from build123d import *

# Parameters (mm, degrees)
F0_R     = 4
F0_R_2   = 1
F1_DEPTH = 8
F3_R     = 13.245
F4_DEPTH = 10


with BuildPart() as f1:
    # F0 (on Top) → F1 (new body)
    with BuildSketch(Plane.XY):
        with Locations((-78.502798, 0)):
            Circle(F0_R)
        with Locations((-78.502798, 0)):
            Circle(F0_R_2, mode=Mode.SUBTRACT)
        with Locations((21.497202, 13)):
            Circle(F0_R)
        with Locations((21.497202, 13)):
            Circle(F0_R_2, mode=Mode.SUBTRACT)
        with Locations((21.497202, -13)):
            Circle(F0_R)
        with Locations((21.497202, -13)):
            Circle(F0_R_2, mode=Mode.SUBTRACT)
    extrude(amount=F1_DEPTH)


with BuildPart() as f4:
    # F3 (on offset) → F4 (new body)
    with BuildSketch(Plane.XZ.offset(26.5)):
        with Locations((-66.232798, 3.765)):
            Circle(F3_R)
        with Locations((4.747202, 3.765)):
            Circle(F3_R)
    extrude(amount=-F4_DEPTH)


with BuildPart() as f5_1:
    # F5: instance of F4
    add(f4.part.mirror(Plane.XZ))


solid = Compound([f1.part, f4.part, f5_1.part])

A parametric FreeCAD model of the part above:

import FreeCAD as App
import Part
import Sketcher

V = App.Vector

doc = App.newDocument("Part")
body = doc.addObject("PartDesign::Body", "Body")
body.AllowCompound = True

sketch1 = doc.addObject("Sketcher::SketchObject", "Sketch")
body.addObject(sketch1)
sketch1.AttachmentSupport = (doc.XY_Plane, [""])
sketch1.MapMode = "FlatFace"
sketch1.addGeometry(Part.Circle(V(-78.502798, 0, 0), V(0, 0, 1), 4), False)
sketch1.addGeometry(Part.Circle(V(-78.502798, 0, 0), V(0, 0, 1), 1), False)
sketch1.addGeometry(Part.Circle(V(21.497202, 13, 0), V(0, 0, 1), 4), False)
sketch1.addGeometry(Part.Circle(V(21.497202, 13, 0), V(0, 0, 1), 1), False)
sketch1.addGeometry(Part.Circle(V(21.497202, -13, 0), V(0, 0, 1), 4), False)
sketch1.addGeometry(Part.Circle(V(21.497202, -13, 0), V(0, 0, 1), 1), False)
sketch1.addConstraint(Sketcher.Constraint("Coincident", 1, 3, 0, 3))
sketch1.addConstraint(Sketcher.Constraint("Coincident", 3, 3, 2, 3))
sketch1.addConstraint(Sketcher.Constraint("Coincident", 5, 3, 4, 3))
sketch1.addConstraint(Sketcher.Constraint("Equal", 0, 2))
sketch1.addConstraint(Sketcher.Constraint("Equal", 1, 3))
sketch1.addConstraint(Sketcher.Constraint("Equal", 2, 4))
sketch1.addConstraint(Sketcher.Constraint("Equal", 3, 5))
sketch1.addConstraint(Sketcher.Constraint("Symmetric", 2, 3, 4, 3, -1))
sketch1.addConstraint(Sketcher.Constraint("PointOnObject", 0, 3, -1))
sketch1.addConstraint(Sketcher.Constraint("Diameter", 0, 8.0))
sketch1.addConstraint(Sketcher.Constraint("Diameter", 1, 2.0))
sketch1.addConstraint(Sketcher.Constraint("DistanceY", -1, 1, 2, 3, 13.0))
sketch1.addConstraint(Sketcher.Constraint("DistanceX", 0, 3, 2, 3, 100.0))
sketch1.addConstraint(Sketcher.Constraint("DistanceX", 0, 3, -1, 1, 78.502798))
pad1 = doc.addObject("PartDesign::Pad", "Pad")
body.addObject(pad1)
pad1.Profile = sketch1
pad1.Length = 8
body2 = doc.addObject("PartDesign::Body", "Body001")
body2.AllowCompound = True

sketch2 = doc.addObject("Sketcher::SketchObject", "Sketch001")
body2.addObject(sketch2)
sketch2.AttachmentSupport = (doc.getObject("XZ_Plane001"), [""])
sketch2.MapMode = "FlatFace"
sketch2.AttachmentOffset = App.Placement(V(0, 0, 26.5), App.Rotation())
sketch2.addGeometry(Part.Circle(V(-66.232798, 3.765, 0), V(0, 0, 1), 13.245), False)
sketch2.addGeometry(Part.Circle(V(4.747202, 3.765, 0), V(0, 0, 1), 13.245), False)
sketch2.addConstraint(Sketcher.Constraint("Equal", 0, 1))
sketch2.addConstraint(Sketcher.Constraint("Horizontal", 0, 3, 1, 3))
sketch2.addConstraint(Sketcher.Constraint("Diameter", 0, 26.49))
sketch2.addConstraint(Sketcher.Constraint("DistanceX", 0, 3, 1, 3, 70.98))
sketch2.addConstraint(Sketcher.Constraint("DistanceY", -1, 1, 0, 3, 3.765))
sketch2.addConstraint(Sketcher.Constraint("DistanceX", 0, 3, -1, 1, 66.232798))
pad2 = doc.addObject("PartDesign::Pad", "Pad001")
body2.addObject(pad2)
pad2.Profile = sketch2
pad2.Length = 10
pad2.Reversed = True
body3 = doc.addObject("PartDesign::Body", "Body002")
body3.AllowCompound = True
doc.recompute()

mirroring = doc.addObject("Part::Mirroring", "Mirroring")
mirroring.Source = body2
mirroring.Base = V(0, 0, 0)
mirroring.Normal = V(0, -1, 0)
body3.BaseFeature = mirroring
doc.recompute()
mirroring.Visibility = False

doc.recompute()
